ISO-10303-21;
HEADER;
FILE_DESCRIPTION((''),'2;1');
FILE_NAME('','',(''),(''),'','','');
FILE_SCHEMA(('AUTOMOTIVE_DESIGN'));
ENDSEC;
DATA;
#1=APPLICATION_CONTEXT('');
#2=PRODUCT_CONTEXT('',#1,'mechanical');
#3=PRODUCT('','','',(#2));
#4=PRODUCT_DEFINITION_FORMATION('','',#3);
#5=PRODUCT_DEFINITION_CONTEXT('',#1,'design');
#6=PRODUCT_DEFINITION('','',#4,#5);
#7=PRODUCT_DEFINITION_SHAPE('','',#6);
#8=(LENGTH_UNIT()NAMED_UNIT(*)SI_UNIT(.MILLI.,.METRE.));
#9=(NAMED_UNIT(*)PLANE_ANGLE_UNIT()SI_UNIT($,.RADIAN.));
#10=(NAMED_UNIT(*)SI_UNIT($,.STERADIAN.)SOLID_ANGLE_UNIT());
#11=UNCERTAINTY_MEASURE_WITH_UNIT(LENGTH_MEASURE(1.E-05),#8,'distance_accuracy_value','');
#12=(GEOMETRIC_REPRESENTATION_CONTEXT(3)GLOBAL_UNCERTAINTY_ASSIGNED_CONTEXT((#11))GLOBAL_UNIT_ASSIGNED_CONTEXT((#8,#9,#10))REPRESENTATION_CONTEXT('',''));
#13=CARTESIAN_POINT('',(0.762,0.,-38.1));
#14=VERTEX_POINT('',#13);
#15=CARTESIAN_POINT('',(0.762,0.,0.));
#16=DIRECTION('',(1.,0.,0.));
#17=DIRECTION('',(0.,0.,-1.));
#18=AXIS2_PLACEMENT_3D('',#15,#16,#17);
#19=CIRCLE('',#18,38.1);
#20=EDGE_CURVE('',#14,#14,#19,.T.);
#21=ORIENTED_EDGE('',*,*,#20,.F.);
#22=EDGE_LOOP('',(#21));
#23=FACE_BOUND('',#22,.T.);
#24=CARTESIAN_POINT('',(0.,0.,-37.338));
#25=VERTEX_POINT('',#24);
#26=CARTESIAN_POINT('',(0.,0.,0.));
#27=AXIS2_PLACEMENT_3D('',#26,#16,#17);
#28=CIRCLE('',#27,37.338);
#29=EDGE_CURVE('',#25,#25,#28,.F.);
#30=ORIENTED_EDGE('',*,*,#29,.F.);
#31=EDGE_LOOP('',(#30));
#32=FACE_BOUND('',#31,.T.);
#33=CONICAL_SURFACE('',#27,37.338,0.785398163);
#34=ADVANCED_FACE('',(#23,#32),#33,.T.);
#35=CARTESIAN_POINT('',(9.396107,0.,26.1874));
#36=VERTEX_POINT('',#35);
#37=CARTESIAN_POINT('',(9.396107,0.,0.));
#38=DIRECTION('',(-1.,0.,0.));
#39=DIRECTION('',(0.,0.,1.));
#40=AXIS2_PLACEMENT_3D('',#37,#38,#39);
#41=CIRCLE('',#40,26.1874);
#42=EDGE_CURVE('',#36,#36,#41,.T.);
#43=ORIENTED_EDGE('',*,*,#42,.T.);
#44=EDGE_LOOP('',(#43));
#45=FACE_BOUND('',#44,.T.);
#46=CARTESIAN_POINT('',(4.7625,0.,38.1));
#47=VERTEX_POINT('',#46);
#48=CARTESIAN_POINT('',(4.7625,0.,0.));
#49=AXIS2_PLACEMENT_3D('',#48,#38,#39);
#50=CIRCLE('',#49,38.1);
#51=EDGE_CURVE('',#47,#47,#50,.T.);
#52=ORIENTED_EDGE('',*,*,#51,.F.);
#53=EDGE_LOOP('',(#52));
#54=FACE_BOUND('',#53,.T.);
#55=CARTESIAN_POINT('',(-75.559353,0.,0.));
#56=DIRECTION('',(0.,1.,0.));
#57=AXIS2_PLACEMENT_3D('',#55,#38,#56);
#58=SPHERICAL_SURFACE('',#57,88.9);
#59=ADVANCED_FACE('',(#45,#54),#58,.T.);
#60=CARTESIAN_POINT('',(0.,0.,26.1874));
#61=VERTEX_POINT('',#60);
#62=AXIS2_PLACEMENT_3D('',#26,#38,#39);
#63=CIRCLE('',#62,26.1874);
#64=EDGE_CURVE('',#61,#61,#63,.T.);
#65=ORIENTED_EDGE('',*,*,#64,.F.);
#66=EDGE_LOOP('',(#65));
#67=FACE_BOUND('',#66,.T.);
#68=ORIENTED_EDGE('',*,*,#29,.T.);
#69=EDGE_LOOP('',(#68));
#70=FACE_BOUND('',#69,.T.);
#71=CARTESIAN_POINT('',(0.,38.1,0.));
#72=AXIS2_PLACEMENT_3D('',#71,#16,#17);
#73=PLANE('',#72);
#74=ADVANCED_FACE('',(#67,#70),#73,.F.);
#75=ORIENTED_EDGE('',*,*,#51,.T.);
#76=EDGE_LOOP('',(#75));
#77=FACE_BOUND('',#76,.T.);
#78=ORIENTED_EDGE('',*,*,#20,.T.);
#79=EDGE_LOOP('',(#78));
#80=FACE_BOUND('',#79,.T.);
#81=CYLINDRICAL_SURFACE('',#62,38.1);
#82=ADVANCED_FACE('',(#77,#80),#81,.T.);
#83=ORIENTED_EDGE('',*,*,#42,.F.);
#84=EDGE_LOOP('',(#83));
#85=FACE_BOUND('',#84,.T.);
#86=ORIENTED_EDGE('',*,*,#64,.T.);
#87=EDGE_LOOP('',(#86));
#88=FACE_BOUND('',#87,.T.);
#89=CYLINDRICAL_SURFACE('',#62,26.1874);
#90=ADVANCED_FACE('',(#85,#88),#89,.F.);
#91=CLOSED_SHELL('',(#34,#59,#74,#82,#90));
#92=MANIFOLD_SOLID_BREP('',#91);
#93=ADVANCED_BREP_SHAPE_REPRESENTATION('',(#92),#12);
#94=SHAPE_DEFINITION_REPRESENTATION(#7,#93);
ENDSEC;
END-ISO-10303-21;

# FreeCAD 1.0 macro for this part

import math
import FreeCAD as App
import Part
import Sketcher

V = App.Vector
Q = App.Units.Quantity


def edges_at(feature, points):
    """Names of the edges that pass closest to the given points."""
    edges = feature.Shape.Edges
    near = lambda p: min(range(len(edges)), key=lambda i: edges[i].distToShape(Part.Vertex(*p))[0])
    return sorted({f"Edge{near(p) + 1}" for p in points})

doc = App.newDocument("Part")
body = doc.addObject("PartDesign::Body", "Body")

# Sketch on XY plane
sketch1 = body.newObject("Sketcher::SketchObject", "Sketch")
sketch1.AttachmentSupport = (doc.getObject("XY_Plane"), [""])
sketch1.MapMode = "FlatFace"
sketch1.addGeometry(Part.LineSegment(V(4.8, 38.1, 0), V(0, 38.1, 0)), False)
sketch1.addGeometry(Part.LineSegment(V(0, 38.1, 0), V(0, 26.2, 0)), False)
sketch1.addGeometry(Part.LineSegment(V(0, 26.2, 0), V(9.4, 26.2, 0)), False)
sketch1.addGeometry(Part.ArcOfCircle(Part.Circle(V(-75.6, 0, 0), V(0, 0, 1), 88.9), math.radians(17.13), math.radians(25.38)), False)
sketch1.addConstraint(Sketcher.Constraint("Coincident", 0, 2, 1, 1))
sketch1.addConstraint(Sketcher.Constraint("Coincident", 1, 2, 2, 1))
sketch1.addConstraint(Sketcher.Constraint("Coincident", 2, 2, 3, 1))
sketch1.addConstraint(Sketcher.Constraint("Coincident", 3, 2, 0, 1))
sketch1.addConstraint(Sketcher.Constraint("Horizontal", 0))
sketch1.addConstraint(Sketcher.Constraint("Vertical", 1))
sketch1.addConstraint(Sketcher.Constraint("Horizontal", 2))
sketch1.addConstraint(Sketcher.Constraint("PointOnObject", 3, 3, -1))
sketch1.addConstraint(Sketcher.Constraint("PointOnObject", 0, 2, -2))
sketch1.addConstraint(Sketcher.Constraint("Radius", 3, Q("3.5 in")))
sketch1.addConstraint(Sketcher.Constraint("DistanceY", -1, 1, 0, 2, Q("1.5 in")))
sketch1.addConstraint(Sketcher.Constraint("DistanceX", 0, 2, 0, 1, Q("0.1875 in")))
sketch1.addConstraint(Sketcher.Constraint("DistanceY", 1, 2, 1, 1, Q("0.469 in")))
revolution = body.newObject("PartDesign::Revolution", "Revolution")
revolution.Profile = sketch1
revolution.ReferenceAxis = (sketch1, ["H_Axis"])
revolution.Angle = 360
doc.recompute()

chamfer = body.newObject("PartDesign::Chamfer", "Chamfer")
chamfer.Base = (revolution, edges_at(revolution, [(0, 0, -38.1)]))
chamfer.Size = Q("0.03 in")

doc.recompute()
